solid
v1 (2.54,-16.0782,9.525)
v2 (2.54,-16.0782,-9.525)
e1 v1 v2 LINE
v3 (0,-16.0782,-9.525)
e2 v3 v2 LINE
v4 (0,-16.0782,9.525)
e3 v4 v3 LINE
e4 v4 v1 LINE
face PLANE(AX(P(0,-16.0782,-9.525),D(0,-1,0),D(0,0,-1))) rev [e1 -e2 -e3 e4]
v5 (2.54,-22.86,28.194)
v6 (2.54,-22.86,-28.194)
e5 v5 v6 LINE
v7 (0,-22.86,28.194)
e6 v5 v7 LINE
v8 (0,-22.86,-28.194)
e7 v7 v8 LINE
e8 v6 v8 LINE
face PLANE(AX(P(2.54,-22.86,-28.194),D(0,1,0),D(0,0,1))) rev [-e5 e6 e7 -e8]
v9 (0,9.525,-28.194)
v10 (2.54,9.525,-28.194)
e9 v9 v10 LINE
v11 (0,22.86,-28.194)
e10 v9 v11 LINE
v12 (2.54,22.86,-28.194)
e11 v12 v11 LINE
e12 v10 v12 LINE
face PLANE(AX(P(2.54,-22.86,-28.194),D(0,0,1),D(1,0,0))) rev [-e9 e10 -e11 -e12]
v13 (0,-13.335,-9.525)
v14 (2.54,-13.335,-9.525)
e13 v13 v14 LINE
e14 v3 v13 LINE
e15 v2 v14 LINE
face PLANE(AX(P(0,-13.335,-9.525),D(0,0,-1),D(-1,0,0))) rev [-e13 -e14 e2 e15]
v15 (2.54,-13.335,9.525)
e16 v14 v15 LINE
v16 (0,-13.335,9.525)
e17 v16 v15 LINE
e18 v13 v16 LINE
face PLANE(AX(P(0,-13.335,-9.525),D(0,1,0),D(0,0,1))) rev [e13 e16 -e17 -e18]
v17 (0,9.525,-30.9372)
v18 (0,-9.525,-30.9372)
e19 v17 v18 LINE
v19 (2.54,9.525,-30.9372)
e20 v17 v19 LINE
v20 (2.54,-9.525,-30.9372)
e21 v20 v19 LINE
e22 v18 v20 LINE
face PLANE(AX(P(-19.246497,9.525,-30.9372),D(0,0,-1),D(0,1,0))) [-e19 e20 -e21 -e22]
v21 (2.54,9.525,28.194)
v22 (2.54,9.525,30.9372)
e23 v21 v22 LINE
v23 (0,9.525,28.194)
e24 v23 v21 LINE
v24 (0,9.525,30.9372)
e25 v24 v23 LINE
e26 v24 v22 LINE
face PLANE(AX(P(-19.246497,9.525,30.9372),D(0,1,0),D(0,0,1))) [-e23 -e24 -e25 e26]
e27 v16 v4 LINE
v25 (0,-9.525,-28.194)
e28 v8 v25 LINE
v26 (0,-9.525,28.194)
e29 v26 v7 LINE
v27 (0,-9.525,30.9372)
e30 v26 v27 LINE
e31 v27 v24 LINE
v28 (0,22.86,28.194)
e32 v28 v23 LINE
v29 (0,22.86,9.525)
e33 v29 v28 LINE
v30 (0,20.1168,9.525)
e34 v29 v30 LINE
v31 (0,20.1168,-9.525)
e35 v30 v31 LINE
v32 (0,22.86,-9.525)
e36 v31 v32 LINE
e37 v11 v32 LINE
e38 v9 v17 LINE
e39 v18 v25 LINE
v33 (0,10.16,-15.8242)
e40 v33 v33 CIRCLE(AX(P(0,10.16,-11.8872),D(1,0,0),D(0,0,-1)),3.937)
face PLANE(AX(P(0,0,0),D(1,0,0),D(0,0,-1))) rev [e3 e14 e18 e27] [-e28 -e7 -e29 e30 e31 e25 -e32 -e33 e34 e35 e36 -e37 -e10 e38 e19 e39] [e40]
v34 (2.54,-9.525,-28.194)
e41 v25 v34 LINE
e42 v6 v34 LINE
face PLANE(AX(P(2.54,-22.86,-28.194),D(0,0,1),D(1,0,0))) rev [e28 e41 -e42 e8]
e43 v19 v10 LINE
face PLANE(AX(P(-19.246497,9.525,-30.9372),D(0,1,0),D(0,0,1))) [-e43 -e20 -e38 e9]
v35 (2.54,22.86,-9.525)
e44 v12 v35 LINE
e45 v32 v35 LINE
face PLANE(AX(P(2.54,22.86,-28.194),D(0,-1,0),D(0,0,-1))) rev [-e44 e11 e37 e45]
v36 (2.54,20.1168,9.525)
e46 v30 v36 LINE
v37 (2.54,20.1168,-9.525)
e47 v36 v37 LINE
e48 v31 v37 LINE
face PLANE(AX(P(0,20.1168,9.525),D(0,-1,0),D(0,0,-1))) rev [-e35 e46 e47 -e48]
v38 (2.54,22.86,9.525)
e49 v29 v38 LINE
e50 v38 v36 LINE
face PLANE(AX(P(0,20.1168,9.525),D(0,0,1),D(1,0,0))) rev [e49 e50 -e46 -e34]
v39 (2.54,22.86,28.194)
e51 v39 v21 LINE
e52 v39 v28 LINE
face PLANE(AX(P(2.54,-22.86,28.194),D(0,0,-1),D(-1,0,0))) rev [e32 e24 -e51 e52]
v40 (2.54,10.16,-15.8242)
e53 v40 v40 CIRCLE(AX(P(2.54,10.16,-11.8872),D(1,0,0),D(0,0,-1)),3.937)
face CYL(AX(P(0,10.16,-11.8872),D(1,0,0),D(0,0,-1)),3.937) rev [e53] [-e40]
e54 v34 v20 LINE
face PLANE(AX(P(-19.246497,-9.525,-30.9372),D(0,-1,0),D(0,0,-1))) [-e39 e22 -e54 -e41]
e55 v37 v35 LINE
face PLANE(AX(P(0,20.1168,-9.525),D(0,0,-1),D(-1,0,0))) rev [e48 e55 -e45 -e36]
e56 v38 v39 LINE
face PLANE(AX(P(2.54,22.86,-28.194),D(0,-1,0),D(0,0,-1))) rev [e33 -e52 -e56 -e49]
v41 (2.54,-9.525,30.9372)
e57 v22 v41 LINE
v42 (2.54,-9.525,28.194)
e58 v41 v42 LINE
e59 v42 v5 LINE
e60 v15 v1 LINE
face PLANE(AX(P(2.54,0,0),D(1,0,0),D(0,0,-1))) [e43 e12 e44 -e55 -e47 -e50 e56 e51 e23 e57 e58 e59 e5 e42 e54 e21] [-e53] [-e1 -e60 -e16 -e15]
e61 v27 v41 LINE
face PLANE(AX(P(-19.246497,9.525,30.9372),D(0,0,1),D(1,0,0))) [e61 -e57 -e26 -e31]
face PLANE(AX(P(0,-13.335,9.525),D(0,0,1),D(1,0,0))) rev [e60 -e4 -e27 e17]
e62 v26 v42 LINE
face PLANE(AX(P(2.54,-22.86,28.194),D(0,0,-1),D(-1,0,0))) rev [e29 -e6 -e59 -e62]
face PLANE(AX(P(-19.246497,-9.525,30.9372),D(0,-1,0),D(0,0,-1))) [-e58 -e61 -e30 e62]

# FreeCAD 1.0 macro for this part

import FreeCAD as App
import Part
import Sketcher

V = App.Vector
Q = App.Units.Quantity

doc = App.newDocument("Part")
body = doc.addObject("PartDesign::Body", "Body")

# Sketch on YZ plane
sketch1 = body.newObject("Sketcher::SketchObject", "Sketch")
sketch1.AttachmentSupport = (doc.getObject("YZ_Plane"), [""])
sketch1.MapMode = "FlatFace"
sketch1.addGeometry([
    Part.LineSegment(V(22.86, 28.194, 0), V(-22.86, 28.194, 0)),
    Part.LineSegment(V(-22.86, 28.194, 0), V(-22.86, -28.194, 0)),
    Part.LineSegment(V(-22.86, -28.194, 0), V(22.86, -28.194, 0)),
    Part.LineSegment(V(22.86, -28.194, 0), V(22.86, 28.194, 0)),
], False)
sketch1.addConstraint([
    Sketcher.Constraint("Coincident", 0, 2, 1, 1),
    Sketcher.Constraint("Coincident", 1, 2, 2, 1),
    Sketcher.Constraint("Coincident", 2, 2, 3, 1),
    Sketcher.Constraint("Coincident", 3, 2, 0, 1),
    Sketcher.Constraint("Horizontal", 0),
    Sketcher.Constraint("Vertical", 1),
    Sketcher.Constraint("Horizontal", 2),
    Sketcher.Constraint("Vertical", 3),
    Sketcher.Constraint("Symmetric", 0, 2, 2, 2, -1, 1),
    Sketcher.Constraint("DistanceX", 0, 2, 0, 1, Q("1.8 in")),
    Sketcher.Constraint("DistanceY", 1, 2, 1, 1, Q("2.22 in")),
])
pad1 = body.newObject("PartDesign::Pad", "Pad")
pad1.Profile = sketch1
pad1.Length = Q("0.1 in")

# Sketch on YZ plane
sketch2 = body.newObject("Sketcher::SketchObject", "Sketch001")
sketch2.AttachmentSupport = (doc.getObject("YZ_Plane"), [""])
sketch2.MapMode = "FlatFace"
sketch2.AttachmentOffset = App.Placement(V(0, 0, 0.1 * 25.4), App.Rotation())
sketch2.addGeometry([
    Part.LineSegment(V(9.525, 30.9372, 0), V(-9.525, 30.9372, 0)),  # 0
    Part.LineSegment(V(-9.525, 30.9372, 0), V(-9.525, 28.194, 0)),  # 1
    Part.LineSegment(V(-9.525, 28.194, 0), V(9.525, 28.194, 0)),  # 2
    Part.LineSegment(V(9.525, 28.194, 0), V(9.525, 30.9372, 0)),  # 3
    Part.LineSegment(V(9.525, -28.194, 0), V(-9.525, -28.194, 0)),  # 4
    Part.LineSegment(V(-9.525, -28.194, 0), V(-9.525, -30.9372, 0)),  # 5
    Part.LineSegment(V(-9.525, -30.9372, 0), V(9.525, -30.9372, 0)),  # 6
    Part.LineSegment(V(9.525, -30.9372, 0), V(9.525, -28.194, 0)),  # 7
], False)
sketch2.addConstraint([
    Sketcher.Constraint("Coincident", 0, 2, 1, 1),
    Sketcher.Constraint("Coincident", 1, 2, 2, 1),
    Sketcher.Constraint("Coincident", 2, 2, 3, 1),
    Sketcher.Constraint("Coincident", 3, 2, 0, 1),
    Sketcher.Constraint("Coincident", 4, 2, 5, 1),
    Sketcher.Constraint("Coincident", 5, 2, 6, 1),
    Sketcher.Constraint("Coincident", 6, 2, 7, 1),
    Sketcher.Constraint("Coincident", 7, 2, 4, 1),
    Sketcher.Constraint("Horizontal", 0),
    Sketcher.Constraint("Vertical", 1),
    Sketcher.Constraint("Horizontal", 2),
    Sketcher.Constraint("Vertical", 3),
    Sketcher.Constraint("Horizontal", 4),
    Sketcher.Constraint("Vertical", 5),
    Sketcher.Constraint("Horizontal", 6),
    Sketcher.Constraint("Vertical", 7),
    Sketcher.Constraint("Symmetric", 2, 2, 4, 2, -1, 1),
    Sketcher.Constraint("Symmetric", 0, 2, 6, 2, -1, 1),
    Sketcher.Constraint("Vertical", 1, 2, 4, 2),
    Sketcher.Constraint("DistanceX", 0, 2, 0, 1, Q("0.75 in")),
    Sketcher.Constraint("DistanceY", 1, 2, 1, 1, Q("0.108 in")),
    Sketcher.Constraint("DistanceY", -1, 1, 1, 2, Q("1.11 in")),
])
pad2 = body.newObject("PartDesign::Pad", "Pad001")
pad2.Profile = sketch2
pad2.Length = Q("0.1 in")
pad2.Reversed = True

# Sketch on YZ plane
sketch3 = body.newObject("Sketcher::SketchObject", "Sketch002")
sketch3.AttachmentSupport = (doc.getObject("YZ_Plane"), [""])
sketch3.MapMode = "FlatFace"
sketch3.AttachmentOffset = App.Placement(V(0, 0, 0.1 * 25.4), App.Rotation())
sketch3.addGeometry([
    Part.LineSegment(V(22.86, 9.525, 0), V(20.1168, 9.525, 0)),  # 0
    Part.LineSegment(V(20.1168, 9.525, 0), V(20.1168, -9.525, 0)),  # 1
    Part.LineSegment(V(20.1168, -9.525, 0), V(22.86, -9.525, 0)),  # 2
    Part.LineSegment(V(22.86, -9.525, 0), V(22.86, 9.525, 0)),  # 3
    Part.LineSegment(V(-13.335, 9.525, 0), V(-16.0782, 9.525, 0)),  # 4
    Part.LineSegment(V(-16.0782, 9.525, 0), V(-16.0782, -9.525, 0)),  # 5
    Part.LineSegment(V(-16.0782, -9.525, 0), V(-13.335, -9.525, 0)),  # 6
    Part.LineSegment(V(-13.335, -9.525, 0), V(-13.335, 9.525, 0)),  # 7
], False)
sketch3.addConstraint([
    Sketcher.Constraint("Coincident", 0, 2, 1, 1),
    Sketcher.Constraint("Coincident", 1, 2, 2, 1),
    Sketcher.Constraint("Coincident", 2, 2, 3, 1),
    Sketcher.Constraint("Coincident", 3, 2, 0, 1),
    Sketcher.Constraint("Coincident", 4, 2, 5, 1),
    Sketcher.Constraint("Coincident", 5, 2, 6, 1),
    Sketcher.Constraint("Coincident", 6, 2, 7, 1),
    Sketcher.Constraint("Coincident", 7, 2, 4, 1),
    Sketcher.Constraint("Horizontal", 0),
    Sketcher.Constraint("Vertical", 1),
    Sketcher.Constraint("Horizontal", 2),
    Sketcher.Constraint("Vertical", 3),
    Sketcher.Constraint("Horizontal", 4),
    Sketcher.Constraint("Vertical", 5),
    Sketcher.Constraint("Horizontal", 6),
    Sketcher.Constraint("Vertical", 7),
    Sketcher.Constraint("Horizontal", 3, 2, 4, 2),
    Sketcher.Constraint("Horizontal", 2, 2, 5, 2),
    Sketcher.Constraint("Equal", 2, 4),
    Sketcher.Constraint("DistanceY", 1, 2, 1, 1, Q("0.75 in")),
    Sketcher.Constraint("DistanceX", -1, 1, 2, 2, Q("0.9 in")),
    Sketcher.Constraint("DistanceX", 0, 2, 0, 1, Q("0.108 in")),
    Sketcher.Constraint("DistanceY", -1, 1, 0, 2, Q("0.375 in")),
    Sketcher.Constraint("DistanceX", 4, 2, -1, 1, Q("0.633 in")),
])
pocket1 = body.newObject("PartDesign::Pocket", "Pocket")
pocket1.Profile = sketch3
pocket1.Type = "ThroughAll"

# Sketch on YZ plane
sketch4 = body.newObject("Sketcher::SketchObject", "Sketch003")
sketch4.AttachmentSupport = (doc.getObject("YZ_Plane"), [""])
sketch4.MapMode = "FlatFace"
sketch4.AttachmentOffset = App.Placement(V(0, 0, 0.1 * 25.4), App.Rotation())
sketch4.addGeometry(Part.Circle(V(10.16, -11.8872, 0), V(0, 0, 1), 3.937), False)
sketch4.addConstraint([
    Sketcher.Constraint("Diameter", 0, Q("0.31 in")),
    Sketcher.Constraint("DistanceX", -1, 1, 0, 3, Q("0.4 in")),
    Sketcher.Constraint("DistanceY", 0, 3, -1, 1, Q("0.468 in")),
])
pocket2 = body.newObject("PartDesign::Pocket", "Pocket001")
pocket2.Profile = sketch4
pocket2.Type = "ThroughAll"

doc.recompute()
